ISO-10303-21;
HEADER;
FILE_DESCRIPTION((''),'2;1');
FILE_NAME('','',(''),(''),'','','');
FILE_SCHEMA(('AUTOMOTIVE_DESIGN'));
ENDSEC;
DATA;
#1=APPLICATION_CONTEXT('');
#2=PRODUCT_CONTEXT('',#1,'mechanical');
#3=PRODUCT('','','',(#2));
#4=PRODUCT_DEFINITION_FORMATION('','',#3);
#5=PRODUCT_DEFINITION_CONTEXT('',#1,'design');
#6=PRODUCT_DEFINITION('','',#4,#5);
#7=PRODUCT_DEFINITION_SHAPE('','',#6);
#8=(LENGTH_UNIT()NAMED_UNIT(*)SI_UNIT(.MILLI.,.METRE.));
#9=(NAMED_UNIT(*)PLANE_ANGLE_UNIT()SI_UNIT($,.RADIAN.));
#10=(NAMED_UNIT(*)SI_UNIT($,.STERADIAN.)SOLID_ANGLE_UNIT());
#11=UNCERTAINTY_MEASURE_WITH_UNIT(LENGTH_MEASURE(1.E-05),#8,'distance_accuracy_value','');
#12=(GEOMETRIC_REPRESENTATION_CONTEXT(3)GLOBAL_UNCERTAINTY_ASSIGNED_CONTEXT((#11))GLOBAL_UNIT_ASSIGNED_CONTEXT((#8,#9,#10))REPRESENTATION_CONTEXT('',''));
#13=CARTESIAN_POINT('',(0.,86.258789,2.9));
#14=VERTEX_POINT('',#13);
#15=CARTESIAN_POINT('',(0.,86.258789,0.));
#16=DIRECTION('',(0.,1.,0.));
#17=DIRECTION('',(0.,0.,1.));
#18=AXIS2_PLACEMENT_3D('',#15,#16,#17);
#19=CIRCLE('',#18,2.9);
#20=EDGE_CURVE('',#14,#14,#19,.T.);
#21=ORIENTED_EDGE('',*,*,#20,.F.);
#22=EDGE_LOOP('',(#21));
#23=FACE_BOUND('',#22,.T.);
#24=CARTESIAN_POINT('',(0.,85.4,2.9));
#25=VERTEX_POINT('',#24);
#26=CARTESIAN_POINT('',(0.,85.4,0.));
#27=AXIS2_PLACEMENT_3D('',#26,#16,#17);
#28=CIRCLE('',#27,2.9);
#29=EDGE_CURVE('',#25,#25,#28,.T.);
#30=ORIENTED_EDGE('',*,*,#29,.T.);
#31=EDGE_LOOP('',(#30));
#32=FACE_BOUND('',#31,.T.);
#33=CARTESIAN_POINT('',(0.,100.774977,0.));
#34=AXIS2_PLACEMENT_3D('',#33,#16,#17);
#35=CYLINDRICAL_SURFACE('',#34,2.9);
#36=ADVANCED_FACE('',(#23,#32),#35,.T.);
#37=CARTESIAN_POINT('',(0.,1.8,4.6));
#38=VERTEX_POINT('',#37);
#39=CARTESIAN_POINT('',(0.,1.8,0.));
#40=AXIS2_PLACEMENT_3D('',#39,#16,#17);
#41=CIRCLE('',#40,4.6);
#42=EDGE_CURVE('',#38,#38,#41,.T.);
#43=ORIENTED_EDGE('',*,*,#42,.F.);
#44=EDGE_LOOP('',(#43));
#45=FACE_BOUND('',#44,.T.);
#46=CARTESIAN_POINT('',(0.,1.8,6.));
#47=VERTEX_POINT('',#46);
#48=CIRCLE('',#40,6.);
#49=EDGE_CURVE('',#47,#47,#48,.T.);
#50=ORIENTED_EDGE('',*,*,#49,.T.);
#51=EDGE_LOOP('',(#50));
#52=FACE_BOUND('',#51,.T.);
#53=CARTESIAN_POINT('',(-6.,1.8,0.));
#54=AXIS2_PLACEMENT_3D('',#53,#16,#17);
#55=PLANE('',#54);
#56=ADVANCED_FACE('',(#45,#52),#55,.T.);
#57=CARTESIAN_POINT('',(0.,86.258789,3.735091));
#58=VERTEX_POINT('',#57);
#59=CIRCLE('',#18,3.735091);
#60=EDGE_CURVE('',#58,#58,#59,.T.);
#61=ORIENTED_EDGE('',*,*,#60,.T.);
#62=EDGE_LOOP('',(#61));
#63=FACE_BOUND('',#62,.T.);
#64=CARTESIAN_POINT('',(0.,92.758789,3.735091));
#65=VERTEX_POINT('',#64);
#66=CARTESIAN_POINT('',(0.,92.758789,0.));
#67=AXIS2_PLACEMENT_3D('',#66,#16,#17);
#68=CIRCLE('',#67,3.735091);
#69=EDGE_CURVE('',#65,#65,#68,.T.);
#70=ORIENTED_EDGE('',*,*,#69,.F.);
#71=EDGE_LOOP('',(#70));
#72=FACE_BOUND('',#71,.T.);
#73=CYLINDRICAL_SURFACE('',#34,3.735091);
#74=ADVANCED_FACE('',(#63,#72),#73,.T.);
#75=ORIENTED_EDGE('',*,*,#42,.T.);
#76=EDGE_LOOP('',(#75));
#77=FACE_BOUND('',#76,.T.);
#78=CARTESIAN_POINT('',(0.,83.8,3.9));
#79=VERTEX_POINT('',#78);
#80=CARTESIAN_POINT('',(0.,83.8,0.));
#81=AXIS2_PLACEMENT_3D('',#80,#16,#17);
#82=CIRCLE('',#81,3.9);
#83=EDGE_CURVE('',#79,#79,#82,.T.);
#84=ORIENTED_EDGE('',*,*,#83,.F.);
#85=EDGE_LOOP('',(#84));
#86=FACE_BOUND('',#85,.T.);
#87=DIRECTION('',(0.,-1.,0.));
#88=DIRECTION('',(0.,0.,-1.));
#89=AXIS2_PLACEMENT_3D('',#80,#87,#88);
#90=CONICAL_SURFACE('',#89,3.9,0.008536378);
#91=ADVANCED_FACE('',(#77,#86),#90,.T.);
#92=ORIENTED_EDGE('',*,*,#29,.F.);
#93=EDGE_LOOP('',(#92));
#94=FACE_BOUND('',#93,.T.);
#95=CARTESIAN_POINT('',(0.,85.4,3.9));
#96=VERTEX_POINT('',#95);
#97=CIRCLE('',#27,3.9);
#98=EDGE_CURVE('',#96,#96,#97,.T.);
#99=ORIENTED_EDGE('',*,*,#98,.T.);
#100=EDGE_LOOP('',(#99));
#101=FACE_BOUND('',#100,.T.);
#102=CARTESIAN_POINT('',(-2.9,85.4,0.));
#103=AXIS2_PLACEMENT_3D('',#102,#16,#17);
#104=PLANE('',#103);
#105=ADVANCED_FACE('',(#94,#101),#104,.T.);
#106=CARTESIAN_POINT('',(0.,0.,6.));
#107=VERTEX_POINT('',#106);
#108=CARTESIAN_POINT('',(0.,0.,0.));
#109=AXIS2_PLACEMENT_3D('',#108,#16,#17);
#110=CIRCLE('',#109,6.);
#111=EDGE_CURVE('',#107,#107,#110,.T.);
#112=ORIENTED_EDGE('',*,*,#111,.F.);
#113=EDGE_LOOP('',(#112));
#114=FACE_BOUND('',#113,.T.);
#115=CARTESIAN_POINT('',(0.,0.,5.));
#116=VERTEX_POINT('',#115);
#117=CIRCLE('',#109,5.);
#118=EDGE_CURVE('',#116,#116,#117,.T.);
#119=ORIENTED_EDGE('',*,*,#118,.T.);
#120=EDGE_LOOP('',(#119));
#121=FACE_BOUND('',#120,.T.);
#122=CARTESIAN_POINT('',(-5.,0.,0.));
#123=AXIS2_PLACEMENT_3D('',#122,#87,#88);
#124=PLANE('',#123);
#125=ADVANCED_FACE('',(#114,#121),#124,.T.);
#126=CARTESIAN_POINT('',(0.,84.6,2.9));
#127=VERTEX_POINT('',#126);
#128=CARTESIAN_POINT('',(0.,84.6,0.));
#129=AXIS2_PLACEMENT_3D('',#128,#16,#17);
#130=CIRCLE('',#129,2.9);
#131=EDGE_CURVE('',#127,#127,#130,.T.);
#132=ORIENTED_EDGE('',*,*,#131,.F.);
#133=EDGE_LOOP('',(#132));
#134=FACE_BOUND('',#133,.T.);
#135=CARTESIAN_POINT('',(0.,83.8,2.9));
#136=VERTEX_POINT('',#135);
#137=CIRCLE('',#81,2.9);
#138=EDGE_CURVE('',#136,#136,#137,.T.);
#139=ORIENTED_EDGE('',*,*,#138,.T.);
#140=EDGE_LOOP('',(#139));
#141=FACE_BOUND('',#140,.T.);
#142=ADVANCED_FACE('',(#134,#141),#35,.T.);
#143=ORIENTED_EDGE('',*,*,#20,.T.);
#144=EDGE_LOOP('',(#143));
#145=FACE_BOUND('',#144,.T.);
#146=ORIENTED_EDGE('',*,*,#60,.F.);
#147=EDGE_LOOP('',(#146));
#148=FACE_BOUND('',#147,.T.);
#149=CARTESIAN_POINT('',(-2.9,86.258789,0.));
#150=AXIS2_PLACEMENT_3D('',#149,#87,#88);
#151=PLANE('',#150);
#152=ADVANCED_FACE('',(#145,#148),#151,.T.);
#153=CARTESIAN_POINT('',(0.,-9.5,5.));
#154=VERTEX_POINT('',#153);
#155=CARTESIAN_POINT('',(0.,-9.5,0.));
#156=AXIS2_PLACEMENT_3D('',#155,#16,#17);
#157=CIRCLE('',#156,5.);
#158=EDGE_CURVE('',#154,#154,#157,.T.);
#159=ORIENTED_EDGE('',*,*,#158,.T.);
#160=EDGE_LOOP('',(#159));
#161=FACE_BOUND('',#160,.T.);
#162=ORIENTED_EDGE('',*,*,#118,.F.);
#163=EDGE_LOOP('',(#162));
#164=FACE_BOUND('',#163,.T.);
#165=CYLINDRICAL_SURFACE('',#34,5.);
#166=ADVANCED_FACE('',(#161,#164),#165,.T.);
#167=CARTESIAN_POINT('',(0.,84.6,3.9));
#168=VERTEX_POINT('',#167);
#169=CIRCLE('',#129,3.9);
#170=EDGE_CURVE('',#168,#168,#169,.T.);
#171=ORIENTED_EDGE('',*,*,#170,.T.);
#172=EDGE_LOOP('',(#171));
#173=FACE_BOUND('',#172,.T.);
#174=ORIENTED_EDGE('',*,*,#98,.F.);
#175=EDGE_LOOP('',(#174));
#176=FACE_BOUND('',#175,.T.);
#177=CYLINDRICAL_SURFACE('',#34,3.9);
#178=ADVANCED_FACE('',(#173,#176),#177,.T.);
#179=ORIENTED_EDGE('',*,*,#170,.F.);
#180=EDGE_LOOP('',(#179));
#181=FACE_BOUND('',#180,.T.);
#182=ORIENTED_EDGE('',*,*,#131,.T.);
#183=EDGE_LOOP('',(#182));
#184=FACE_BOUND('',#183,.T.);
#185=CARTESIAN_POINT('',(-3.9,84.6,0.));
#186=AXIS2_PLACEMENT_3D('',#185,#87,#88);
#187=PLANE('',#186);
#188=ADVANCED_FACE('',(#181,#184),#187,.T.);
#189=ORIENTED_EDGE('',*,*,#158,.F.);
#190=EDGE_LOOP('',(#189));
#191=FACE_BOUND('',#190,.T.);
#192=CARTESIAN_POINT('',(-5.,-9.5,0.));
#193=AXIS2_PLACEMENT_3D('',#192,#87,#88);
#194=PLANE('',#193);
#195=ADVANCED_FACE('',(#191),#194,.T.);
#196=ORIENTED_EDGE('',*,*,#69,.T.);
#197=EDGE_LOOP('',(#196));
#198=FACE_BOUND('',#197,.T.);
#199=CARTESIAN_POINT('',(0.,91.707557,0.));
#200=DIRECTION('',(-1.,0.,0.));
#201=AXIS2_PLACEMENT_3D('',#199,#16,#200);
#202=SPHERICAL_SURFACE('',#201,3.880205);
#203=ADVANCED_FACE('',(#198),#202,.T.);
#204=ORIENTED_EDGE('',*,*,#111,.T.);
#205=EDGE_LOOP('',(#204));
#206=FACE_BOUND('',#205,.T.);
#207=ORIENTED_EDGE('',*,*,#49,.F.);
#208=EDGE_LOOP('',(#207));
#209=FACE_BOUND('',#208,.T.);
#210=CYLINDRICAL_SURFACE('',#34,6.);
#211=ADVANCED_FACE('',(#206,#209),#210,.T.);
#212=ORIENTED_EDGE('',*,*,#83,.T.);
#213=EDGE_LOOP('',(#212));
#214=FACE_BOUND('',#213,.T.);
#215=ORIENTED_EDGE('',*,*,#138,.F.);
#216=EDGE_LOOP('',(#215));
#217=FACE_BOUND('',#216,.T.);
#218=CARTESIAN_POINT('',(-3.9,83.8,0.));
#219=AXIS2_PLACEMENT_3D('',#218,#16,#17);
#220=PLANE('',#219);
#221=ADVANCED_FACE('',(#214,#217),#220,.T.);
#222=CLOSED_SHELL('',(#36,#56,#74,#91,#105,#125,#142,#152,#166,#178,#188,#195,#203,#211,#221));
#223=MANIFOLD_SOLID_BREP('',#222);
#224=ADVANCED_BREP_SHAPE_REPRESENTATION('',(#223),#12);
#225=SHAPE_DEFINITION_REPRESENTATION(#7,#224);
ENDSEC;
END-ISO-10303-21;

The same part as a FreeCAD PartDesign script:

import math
import FreeCAD as App
import Part
import Sketcher

V = App.Vector

doc = App.newDocument("Part")
params = doc.addObject("Spreadsheet::Sheet", "Params")
for row, (alias, value) in enumerate([
    ("sketch1_width", "5 mm"),
    ("sketch1_width2", "1 mm"),
    ("sketch1_width3", "1.4 mm"),
    ("sketch1_height", "9.5 mm"),
    ("sketch1_height2", "6.5 mm"),
    ("revolution_angle", "360 deg"),
], start=1):
    params.set(f"A{row}", alias)
    params.set(f"B{row}", "=" + value)
    params.setAlias(f"B{row}", alias)

body = doc.addObject("PartDesign::Body", "Body")

sketch1 = doc.addObject("Sketcher::SketchObject", "Sketch")
body.addObject(sketch1)
sketch1.AttachmentSupport = (doc.XY_Plane, [""])
sketch1.MapMode = "FlatFace"
sketch1.addGeometry(Part.LineSegment(V(-5, 0, 0), V(-5, -9.5, 0)), False)
sketch1.addGeometry(Part.LineSegment(V(-5, -9.5, 0), V(0, -9.5, 0)), False)
sketch1.addGeometry(Part.LineSegment(V(0, -9.5, 0), V(0, 95.6, 0)), False)
sketch1.addGeometry(Part.ArcOfCircle(Part.Circle(V(0, 91.7, 0), V(0, 0, 1), 3.9), math.radians(90), math.radians(164)), False)
sketch1.addGeometry(Part.LineSegment(V(-3.7, 92.8, 0), V(-3.7, 86.3, 0)), False)
sketch1.addGeometry(Part.LineSegment(V(-3.7, 86.3, 0), V(-2.9, 86.3, 0)), False)
sketch1.addGeometry(Part.LineSegment(V(-2.9, 86.3, 0), V(-2.9, 85.4, 0)), False)
sketch1.addGeometry(Part.LineSegment(V(-2.9, 85.4, 0), V(-3.9, 85.4, 0)), False)
sketch1.addGeometry(Part.LineSegment(V(-3.9, 85.4, 0), V(-3.9, 84.6, 0)), False)
sketch1.addGeometry(Part.LineSegment(V(-3.9, 84.6, 0), V(-2.9, 84.6, 0)), False)
sketch1.addGeometry(Part.LineSegment(V(-2.9, 84.6, 0), V(-2.9, 83.8, 0)), False)
sketch1.addGeometry(Part.LineSegment(V(-2.9, 83.8, 0), V(-3.9, 83.8, 0)), False)
sketch1.addGeometry(Part.LineSegment(V(-3.9, 83.8, 0), V(-4.6, 1.8, 0)), False)
sketch1.addGeometry(Part.LineSegment(V(-4.6, 1.8, 0), V(-6, 1.8, 0)), False)
sketch1.addGeometry(Part.LineSegment(V(-6, 1.8, 0), V(-6, 0, 0)), False)
sketch1.addGeometry(Part.LineSegment(V(-6, 0, 0), V(-5, 0, 0)), False)
sketch1.addConstraint(Sketcher.Constraint("Coincident", 0, 2, 1, 1))
sketch1.addConstraint(Sketcher.Constraint("Coincident", 1, 2, 2, 1))
sketch1.addConstraint(Sketcher.Constraint("Coincident", 2, 2, 3, 1))
sketch1.addConstraint(Sketcher.Constraint("Coincident", 3, 2, 4, 1))
sketch1.addConstraint(Sketcher.Constraint("Coincident", 4, 2, 5, 1))
sketch1.addConstraint(Sketcher.Constraint("Coincident", 5, 2, 6, 1))
sketch1.addConstraint(Sketcher.Constraint("Coincident", 6, 2, 7, 1))
sketch1.addConstraint(Sketcher.Constraint("Coincident", 7, 2, 8, 1))
sketch1.addConstraint(Sketcher.Constraint("Coincident", 8, 2, 9, 1))
sketch1.addConstraint(Sketcher.Constraint("Coincident", 9, 2, 10, 1))
sketch1.addConstraint(Sketcher.Constraint("Coincident", 10, 2, 11, 1))
sketch1.addConstraint(Sketcher.Constraint("Coincident", 11, 2, 12, 1))
sketch1.addConstraint(Sketcher.Constraint("Coincident", 12, 2, 13, 1))
sketch1.addConstraint(Sketcher.Constraint("Coincident", 13, 2, 14, 1))
sketch1.addConstraint(Sketcher.Constraint("Coincident", 14, 2, 15, 1))
sketch1.addConstraint(Sketcher.Constraint("Coincident", 15, 2, 0, 1))
sketch1.addConstraint(Sketcher.Constraint("Vertical", 0))
sketch1.addConstraint(Sketcher.Constraint("Horizontal", 1))
sketch1.addConstraint(Sketcher.Constraint("Vertical", 2))
sketch1.addConstraint(Sketcher.Constraint("Vertical", 4))
sketch1.addConstraint(Sketcher.Constraint("Horizontal", 5))
sketch1.addConstraint(Sketcher.Constraint("Vertical", 6))
sketch1.addConstraint(Sketcher.Constraint("Horizontal", 7))
sketch1.addConstraint(Sketcher.Constraint("Vertical", 8))
sketch1.addConstraint(Sketcher.Constraint("Horizontal", 9))
sketch1.addConstraint(Sketcher.Constraint("Vertical", 10))
sketch1.addConstraint(Sketcher.Constraint("Horizontal", 11))
sketch1.addConstraint(Sketcher.Constraint("Horizontal", 13))
sketch1.addConstraint(Sketcher.Constraint("Vertical", 14))
sketch1.addConstraint(Sketcher.Constraint("Horizontal", 15))
sketch1.addConstraint(Sketcher.Constraint("PointOnObject", 3, 3, -2))
sketch1.addConstraint(Sketcher.Constraint("PointOnObject", 1, 2, -2))
sketch1.addConstraint(Sketcher.Constraint("PointOnObject", 14, 2, -1))
sketch1.addConstraint(Sketcher.Constraint("Vertical", 6, 2, 9, 2))
sketch1.addConstraint(Sketcher.Constraint("Vertical", 8, 2, 11, 2))
sketch1.addConstraint(Sketcher.Constraint("Equal", 11, 15))
sketch1.addConstraint(Sketcher.Constraint("Equal", 8, 10))
sketch1.addConstraint(Sketcher.Constraint("DistanceX", 1, 1, 1, 2, 5.0))
sketch1.addConstraint(Sketcher.Constraint("DistanceX", 7, 2, 7, 1, 1.0))
sketch1.addConstraint(Sketcher.Constraint("DistanceX", 13, 2, 13, 1, 1.4))
sketch1.addConstraint(Sketcher.Constraint("DistanceY", 0, 2, 0, 1, 9.5))
sketch1.addConstraint(Sketcher.Constraint("DistanceY", 4, 2, 4, 1, 6.5))
sketch1.addConstraint(Sketcher.Constraint("DistanceY", 8, 2, 8, 1, 0.8))
sketch1.addConstraint(Sketcher.Constraint("DistanceY", 14, 2, 14, 1, 1.8))
sketch1.addConstraint(Sketcher.Constraint("DistanceY", 12, 2, 11, 2, 82.0))
sketch1.addConstraint(Sketcher.Constraint("DistanceX", 5, 2, -1, 1, 2.9))
sketch1.addConstraint(Sketcher.Constraint("Radius", 3, 3.880205))
sketch1.addConstraint(Sketcher.Constraint("DistanceX", 5, 1, 5, 2, 0.835091))
sketch1.addConstraint(Sketcher.Constraint("DistanceY", 6, 2, 6, 1, 0.858789))
sketch1.setExpression("Constraints[37]", "Params.sketch1_width")
sketch1.setExpression("Constraints[38]", "Params.sketch1_width2")
sketch1.setExpression("Constraints[39]", "Params.sketch1_width3")
sketch1.setExpression("Constraints[40]", "Params.sketch1_height")
sketch1.setExpression("Constraints[41]", "Params.sketch1_height2")
revolution = doc.addObject("PartDesign::Revolution", "Revolution")
body.addObject(revolution)
revolution.Profile = sketch1
revolution.ReferenceAxis = (sketch1, ["V_Axis"])
revolution.setExpression("Angle", "Params.revolution_angle")

doc.recompute()
